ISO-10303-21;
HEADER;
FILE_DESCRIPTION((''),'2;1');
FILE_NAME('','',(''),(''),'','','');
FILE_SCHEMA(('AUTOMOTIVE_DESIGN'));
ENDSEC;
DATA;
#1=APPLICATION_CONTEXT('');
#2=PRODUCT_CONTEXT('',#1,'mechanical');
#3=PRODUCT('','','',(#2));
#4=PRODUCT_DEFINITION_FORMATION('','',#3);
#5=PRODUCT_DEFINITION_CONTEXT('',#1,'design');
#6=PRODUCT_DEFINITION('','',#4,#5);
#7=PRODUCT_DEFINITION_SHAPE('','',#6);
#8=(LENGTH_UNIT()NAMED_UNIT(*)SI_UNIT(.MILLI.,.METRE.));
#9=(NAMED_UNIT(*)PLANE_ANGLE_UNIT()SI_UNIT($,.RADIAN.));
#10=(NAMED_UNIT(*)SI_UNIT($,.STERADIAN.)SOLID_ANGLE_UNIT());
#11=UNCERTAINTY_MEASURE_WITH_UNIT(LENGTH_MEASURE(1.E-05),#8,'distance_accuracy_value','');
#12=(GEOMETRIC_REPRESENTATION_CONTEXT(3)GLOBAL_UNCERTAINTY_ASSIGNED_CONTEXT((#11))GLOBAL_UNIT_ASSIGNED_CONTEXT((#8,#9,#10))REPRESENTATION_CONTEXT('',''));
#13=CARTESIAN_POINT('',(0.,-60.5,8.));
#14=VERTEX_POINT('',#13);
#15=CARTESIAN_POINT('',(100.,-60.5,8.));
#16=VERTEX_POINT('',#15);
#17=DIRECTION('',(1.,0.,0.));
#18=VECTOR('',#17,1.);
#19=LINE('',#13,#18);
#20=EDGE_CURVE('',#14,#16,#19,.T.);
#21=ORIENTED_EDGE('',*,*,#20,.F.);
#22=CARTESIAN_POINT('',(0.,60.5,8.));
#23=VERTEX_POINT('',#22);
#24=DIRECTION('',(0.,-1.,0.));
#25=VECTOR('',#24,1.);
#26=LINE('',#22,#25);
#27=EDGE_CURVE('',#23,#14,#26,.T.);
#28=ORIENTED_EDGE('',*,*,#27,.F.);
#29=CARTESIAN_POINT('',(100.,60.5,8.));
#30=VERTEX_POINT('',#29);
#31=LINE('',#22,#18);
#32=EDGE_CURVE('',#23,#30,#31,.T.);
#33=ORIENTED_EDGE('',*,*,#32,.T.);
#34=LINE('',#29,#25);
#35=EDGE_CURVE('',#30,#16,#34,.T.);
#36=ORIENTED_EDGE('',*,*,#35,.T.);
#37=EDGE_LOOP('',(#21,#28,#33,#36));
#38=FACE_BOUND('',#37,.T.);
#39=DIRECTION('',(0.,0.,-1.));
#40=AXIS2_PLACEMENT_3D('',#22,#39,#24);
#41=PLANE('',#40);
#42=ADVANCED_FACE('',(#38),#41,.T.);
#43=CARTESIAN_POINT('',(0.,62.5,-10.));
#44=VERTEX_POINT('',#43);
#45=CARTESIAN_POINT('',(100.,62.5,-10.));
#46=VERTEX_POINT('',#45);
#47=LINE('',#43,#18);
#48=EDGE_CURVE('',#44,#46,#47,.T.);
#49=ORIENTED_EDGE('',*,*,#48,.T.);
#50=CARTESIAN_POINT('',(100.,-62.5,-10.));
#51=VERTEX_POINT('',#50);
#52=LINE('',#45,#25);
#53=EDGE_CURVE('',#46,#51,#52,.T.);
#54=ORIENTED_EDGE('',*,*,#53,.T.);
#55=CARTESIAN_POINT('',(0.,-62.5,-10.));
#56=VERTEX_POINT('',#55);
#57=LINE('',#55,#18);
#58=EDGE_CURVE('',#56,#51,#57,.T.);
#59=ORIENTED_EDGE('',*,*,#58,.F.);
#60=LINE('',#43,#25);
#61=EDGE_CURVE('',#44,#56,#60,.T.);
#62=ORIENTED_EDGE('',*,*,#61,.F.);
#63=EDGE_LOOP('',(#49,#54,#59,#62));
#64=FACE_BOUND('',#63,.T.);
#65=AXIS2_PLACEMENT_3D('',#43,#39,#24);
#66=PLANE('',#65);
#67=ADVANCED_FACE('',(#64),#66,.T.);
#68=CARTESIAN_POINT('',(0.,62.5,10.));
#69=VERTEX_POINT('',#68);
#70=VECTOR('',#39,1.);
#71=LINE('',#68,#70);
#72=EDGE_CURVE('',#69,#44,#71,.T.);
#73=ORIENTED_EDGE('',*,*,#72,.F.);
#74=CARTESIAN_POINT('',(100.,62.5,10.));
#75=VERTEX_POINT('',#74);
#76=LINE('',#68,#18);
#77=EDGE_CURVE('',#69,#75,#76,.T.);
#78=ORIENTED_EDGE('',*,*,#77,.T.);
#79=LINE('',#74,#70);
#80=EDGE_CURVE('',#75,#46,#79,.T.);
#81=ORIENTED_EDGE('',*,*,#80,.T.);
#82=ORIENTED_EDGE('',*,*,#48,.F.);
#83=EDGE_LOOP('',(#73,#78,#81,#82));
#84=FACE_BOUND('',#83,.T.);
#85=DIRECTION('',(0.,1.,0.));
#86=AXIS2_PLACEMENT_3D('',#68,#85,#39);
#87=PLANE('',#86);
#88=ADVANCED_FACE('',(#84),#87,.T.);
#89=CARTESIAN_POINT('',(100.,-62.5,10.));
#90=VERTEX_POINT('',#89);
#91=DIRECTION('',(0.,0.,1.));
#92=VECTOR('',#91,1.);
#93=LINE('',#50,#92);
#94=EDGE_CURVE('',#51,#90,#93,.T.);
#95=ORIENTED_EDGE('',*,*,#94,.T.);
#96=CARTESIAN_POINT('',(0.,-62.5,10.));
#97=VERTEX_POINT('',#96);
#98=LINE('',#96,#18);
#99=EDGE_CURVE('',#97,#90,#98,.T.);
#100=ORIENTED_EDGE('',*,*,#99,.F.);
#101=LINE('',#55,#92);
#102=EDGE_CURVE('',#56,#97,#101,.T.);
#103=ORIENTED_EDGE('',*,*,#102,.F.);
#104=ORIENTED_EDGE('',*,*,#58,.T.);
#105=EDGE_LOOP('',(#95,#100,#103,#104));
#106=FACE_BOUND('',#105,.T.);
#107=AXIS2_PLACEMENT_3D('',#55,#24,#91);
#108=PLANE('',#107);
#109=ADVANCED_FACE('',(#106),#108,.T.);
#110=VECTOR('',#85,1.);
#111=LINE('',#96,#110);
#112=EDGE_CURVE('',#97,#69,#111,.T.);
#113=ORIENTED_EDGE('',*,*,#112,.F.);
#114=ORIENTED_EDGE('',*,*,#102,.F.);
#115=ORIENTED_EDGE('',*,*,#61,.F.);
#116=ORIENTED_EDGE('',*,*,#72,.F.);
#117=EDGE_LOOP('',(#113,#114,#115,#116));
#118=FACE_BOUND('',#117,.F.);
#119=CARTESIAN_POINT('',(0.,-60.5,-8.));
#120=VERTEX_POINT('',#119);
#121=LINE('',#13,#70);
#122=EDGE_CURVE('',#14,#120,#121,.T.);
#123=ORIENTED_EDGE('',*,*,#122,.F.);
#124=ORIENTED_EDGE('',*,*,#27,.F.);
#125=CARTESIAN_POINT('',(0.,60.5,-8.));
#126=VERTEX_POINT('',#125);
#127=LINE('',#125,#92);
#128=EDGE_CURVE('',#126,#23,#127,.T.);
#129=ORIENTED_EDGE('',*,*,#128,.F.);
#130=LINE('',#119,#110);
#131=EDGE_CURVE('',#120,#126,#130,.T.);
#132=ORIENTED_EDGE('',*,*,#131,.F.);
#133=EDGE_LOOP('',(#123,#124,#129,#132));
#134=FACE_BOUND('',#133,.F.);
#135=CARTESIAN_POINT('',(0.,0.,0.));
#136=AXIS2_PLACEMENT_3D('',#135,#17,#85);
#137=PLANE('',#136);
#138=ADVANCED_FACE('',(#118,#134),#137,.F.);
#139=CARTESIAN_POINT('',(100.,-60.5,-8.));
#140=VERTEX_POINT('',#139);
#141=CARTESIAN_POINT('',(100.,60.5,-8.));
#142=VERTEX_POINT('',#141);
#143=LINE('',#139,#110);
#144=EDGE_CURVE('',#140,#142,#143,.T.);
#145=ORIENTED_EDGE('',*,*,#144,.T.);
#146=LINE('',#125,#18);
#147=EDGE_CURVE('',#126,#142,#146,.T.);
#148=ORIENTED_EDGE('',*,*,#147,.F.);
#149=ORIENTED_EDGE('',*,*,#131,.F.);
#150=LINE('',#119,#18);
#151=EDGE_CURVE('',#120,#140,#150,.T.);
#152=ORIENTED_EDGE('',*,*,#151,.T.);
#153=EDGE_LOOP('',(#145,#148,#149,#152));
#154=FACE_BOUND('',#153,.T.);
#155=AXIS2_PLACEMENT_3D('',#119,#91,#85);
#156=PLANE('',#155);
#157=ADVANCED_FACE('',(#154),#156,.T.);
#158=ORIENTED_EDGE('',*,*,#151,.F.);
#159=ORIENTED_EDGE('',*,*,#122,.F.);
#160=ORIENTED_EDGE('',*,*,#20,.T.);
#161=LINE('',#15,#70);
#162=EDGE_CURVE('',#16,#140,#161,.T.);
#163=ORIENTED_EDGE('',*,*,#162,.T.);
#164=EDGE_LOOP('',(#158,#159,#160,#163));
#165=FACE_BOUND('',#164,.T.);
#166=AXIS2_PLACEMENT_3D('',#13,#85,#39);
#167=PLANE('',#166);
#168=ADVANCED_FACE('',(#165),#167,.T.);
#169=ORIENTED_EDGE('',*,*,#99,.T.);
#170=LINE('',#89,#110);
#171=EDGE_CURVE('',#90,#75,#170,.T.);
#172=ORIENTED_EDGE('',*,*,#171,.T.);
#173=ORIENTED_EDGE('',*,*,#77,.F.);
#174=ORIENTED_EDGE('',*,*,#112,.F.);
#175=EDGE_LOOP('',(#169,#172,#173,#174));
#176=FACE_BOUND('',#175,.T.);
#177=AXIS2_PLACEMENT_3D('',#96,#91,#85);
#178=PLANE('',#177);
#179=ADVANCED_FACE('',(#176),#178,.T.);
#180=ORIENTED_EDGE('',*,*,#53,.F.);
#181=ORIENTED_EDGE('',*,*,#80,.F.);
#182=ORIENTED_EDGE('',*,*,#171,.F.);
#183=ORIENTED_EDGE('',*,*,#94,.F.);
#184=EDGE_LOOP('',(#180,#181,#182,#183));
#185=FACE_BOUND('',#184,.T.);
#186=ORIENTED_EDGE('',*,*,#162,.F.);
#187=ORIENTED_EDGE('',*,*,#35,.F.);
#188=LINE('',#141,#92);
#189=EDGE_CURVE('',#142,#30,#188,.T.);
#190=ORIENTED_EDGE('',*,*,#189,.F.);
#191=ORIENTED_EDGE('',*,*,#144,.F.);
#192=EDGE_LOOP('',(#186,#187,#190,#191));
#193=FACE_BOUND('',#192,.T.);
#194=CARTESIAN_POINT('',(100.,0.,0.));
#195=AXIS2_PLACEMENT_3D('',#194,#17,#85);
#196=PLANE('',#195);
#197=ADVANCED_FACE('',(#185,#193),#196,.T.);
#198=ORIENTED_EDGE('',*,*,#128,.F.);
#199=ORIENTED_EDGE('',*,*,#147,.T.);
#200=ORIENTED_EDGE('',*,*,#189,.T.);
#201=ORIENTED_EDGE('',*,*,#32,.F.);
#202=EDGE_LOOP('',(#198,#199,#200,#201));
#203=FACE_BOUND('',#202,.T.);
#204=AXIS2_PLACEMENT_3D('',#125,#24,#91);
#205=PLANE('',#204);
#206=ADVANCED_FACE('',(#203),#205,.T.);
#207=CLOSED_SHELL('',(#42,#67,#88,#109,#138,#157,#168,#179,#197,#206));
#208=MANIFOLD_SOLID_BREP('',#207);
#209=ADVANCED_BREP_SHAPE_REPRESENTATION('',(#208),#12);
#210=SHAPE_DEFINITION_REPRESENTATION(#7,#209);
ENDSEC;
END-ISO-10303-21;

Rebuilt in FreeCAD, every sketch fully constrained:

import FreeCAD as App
import Part
import Sketcher

V = App.Vector

doc = App.newDocument("Part")
body = doc.addObject("PartDesign::Body", "Body")

# Sketch on YZ plane
sketch1 = body.newObject("Sketcher::SketchObject", "Sketch")
sketch1.AttachmentSupport = (doc.getObject("YZ_Plane"), [""])
sketch1.MapMode = "FlatFace"
sketch1.addGeometry(Part.LineSegment(V(62, 10, 0), V(-62, 10, 0)), False)
sketch1.addGeometry(Part.LineSegment(V(-62, 10, 0), V(-62, -10, 0)), False)
sketch1.addGeometry(Part.LineSegment(V(-62, -10, 0), V(62, -10, 0)), False)
sketch1.addGeometry(Part.LineSegment(V(62, -10, 0), V(62, 10, 0)), False)
sketch1.addGeometry(Part.LineSegment(V(60, 8, 0), V(60, -8, 0)), False)
sketch1.addGeometry(Part.LineSegment(V(60, -8, 0), V(-60, -8, 0)), False)
sketch1.addGeometry(Part.LineSegment(V(-60, -8, 0), V(-60, 8, 0)), False)
sketch1.addGeometry(Part.LineSegment(V(-60, 8, 0), V(60, 8, 0)), False)
sketch1.addConstraint(Sketcher.Constraint("Coincident", 0, 2, 1, 1))
sketch1.addConstraint(Sketcher.Constraint("Coincident", 1, 2, 2, 1))
sketch1.addConstraint(Sketcher.Constraint("Coincident", 2, 2, 3, 1))
sketch1.addConstraint(Sketcher.Constraint("Coincident", 3, 2, 0, 1))
sketch1.addConstraint(Sketcher.Constraint("Coincident", 4, 2, 5, 1))
sketch1.addConstraint(Sketcher.Constraint("Coincident", 5, 2, 6, 1))
sketch1.addConstraint(Sketcher.Constraint("Coincident", 6, 2, 7, 1))
sketch1.addConstraint(Sketcher.Constraint("Coincident", 7, 2, 4, 1))
sketch1.addConstraint(Sketcher.Constraint("Horizontal", 0))
sketch1.addConstraint(Sketcher.Constraint("Vertical", 1))
sketch1.addConstraint(Sketcher.Constraint("Horizontal", 2))
sketch1.addConstraint(Sketcher.Constraint("Vertical", 3))
sketch1.addConstraint(Sketcher.Constraint("Vertical", 4))
sketch1.addConstraint(Sketcher.Constraint("Horizontal", 5))
sketch1.addConstraint(Sketcher.Constraint("Vertical", 6))
sketch1.addConstraint(Sketcher.Constraint("Horizontal", 7))
sketch1.addConstraint(Sketcher.Constraint("Symmetric", 0, 2, 2, 2, -1, 1))
sketch1.addConstraint(Sketcher.Constraint("Symmetric", 4, 2, 6, 2, -1, 1))
sketch1.addConstraint(Sketcher.Constraint("DistanceX", 0, 2, 0, 1, 125.0))
sketch1.addConstraint(Sketcher.Constraint("DistanceY", 1, 2, 1, 1, 20.0))
sketch1.addConstraint(Sketcher.Constraint("DistanceX", 4, 2, 2, 2, 2.0))
sketch1.addConstraint(Sketcher.Constraint("DistanceY", 2, 2, 4, 2, 2.0))
pad1 = body.newObject("PartDesign::Pad", "Pad")
pad1.Profile = sketch1
pad1.Length = 100

doc.recompute()
